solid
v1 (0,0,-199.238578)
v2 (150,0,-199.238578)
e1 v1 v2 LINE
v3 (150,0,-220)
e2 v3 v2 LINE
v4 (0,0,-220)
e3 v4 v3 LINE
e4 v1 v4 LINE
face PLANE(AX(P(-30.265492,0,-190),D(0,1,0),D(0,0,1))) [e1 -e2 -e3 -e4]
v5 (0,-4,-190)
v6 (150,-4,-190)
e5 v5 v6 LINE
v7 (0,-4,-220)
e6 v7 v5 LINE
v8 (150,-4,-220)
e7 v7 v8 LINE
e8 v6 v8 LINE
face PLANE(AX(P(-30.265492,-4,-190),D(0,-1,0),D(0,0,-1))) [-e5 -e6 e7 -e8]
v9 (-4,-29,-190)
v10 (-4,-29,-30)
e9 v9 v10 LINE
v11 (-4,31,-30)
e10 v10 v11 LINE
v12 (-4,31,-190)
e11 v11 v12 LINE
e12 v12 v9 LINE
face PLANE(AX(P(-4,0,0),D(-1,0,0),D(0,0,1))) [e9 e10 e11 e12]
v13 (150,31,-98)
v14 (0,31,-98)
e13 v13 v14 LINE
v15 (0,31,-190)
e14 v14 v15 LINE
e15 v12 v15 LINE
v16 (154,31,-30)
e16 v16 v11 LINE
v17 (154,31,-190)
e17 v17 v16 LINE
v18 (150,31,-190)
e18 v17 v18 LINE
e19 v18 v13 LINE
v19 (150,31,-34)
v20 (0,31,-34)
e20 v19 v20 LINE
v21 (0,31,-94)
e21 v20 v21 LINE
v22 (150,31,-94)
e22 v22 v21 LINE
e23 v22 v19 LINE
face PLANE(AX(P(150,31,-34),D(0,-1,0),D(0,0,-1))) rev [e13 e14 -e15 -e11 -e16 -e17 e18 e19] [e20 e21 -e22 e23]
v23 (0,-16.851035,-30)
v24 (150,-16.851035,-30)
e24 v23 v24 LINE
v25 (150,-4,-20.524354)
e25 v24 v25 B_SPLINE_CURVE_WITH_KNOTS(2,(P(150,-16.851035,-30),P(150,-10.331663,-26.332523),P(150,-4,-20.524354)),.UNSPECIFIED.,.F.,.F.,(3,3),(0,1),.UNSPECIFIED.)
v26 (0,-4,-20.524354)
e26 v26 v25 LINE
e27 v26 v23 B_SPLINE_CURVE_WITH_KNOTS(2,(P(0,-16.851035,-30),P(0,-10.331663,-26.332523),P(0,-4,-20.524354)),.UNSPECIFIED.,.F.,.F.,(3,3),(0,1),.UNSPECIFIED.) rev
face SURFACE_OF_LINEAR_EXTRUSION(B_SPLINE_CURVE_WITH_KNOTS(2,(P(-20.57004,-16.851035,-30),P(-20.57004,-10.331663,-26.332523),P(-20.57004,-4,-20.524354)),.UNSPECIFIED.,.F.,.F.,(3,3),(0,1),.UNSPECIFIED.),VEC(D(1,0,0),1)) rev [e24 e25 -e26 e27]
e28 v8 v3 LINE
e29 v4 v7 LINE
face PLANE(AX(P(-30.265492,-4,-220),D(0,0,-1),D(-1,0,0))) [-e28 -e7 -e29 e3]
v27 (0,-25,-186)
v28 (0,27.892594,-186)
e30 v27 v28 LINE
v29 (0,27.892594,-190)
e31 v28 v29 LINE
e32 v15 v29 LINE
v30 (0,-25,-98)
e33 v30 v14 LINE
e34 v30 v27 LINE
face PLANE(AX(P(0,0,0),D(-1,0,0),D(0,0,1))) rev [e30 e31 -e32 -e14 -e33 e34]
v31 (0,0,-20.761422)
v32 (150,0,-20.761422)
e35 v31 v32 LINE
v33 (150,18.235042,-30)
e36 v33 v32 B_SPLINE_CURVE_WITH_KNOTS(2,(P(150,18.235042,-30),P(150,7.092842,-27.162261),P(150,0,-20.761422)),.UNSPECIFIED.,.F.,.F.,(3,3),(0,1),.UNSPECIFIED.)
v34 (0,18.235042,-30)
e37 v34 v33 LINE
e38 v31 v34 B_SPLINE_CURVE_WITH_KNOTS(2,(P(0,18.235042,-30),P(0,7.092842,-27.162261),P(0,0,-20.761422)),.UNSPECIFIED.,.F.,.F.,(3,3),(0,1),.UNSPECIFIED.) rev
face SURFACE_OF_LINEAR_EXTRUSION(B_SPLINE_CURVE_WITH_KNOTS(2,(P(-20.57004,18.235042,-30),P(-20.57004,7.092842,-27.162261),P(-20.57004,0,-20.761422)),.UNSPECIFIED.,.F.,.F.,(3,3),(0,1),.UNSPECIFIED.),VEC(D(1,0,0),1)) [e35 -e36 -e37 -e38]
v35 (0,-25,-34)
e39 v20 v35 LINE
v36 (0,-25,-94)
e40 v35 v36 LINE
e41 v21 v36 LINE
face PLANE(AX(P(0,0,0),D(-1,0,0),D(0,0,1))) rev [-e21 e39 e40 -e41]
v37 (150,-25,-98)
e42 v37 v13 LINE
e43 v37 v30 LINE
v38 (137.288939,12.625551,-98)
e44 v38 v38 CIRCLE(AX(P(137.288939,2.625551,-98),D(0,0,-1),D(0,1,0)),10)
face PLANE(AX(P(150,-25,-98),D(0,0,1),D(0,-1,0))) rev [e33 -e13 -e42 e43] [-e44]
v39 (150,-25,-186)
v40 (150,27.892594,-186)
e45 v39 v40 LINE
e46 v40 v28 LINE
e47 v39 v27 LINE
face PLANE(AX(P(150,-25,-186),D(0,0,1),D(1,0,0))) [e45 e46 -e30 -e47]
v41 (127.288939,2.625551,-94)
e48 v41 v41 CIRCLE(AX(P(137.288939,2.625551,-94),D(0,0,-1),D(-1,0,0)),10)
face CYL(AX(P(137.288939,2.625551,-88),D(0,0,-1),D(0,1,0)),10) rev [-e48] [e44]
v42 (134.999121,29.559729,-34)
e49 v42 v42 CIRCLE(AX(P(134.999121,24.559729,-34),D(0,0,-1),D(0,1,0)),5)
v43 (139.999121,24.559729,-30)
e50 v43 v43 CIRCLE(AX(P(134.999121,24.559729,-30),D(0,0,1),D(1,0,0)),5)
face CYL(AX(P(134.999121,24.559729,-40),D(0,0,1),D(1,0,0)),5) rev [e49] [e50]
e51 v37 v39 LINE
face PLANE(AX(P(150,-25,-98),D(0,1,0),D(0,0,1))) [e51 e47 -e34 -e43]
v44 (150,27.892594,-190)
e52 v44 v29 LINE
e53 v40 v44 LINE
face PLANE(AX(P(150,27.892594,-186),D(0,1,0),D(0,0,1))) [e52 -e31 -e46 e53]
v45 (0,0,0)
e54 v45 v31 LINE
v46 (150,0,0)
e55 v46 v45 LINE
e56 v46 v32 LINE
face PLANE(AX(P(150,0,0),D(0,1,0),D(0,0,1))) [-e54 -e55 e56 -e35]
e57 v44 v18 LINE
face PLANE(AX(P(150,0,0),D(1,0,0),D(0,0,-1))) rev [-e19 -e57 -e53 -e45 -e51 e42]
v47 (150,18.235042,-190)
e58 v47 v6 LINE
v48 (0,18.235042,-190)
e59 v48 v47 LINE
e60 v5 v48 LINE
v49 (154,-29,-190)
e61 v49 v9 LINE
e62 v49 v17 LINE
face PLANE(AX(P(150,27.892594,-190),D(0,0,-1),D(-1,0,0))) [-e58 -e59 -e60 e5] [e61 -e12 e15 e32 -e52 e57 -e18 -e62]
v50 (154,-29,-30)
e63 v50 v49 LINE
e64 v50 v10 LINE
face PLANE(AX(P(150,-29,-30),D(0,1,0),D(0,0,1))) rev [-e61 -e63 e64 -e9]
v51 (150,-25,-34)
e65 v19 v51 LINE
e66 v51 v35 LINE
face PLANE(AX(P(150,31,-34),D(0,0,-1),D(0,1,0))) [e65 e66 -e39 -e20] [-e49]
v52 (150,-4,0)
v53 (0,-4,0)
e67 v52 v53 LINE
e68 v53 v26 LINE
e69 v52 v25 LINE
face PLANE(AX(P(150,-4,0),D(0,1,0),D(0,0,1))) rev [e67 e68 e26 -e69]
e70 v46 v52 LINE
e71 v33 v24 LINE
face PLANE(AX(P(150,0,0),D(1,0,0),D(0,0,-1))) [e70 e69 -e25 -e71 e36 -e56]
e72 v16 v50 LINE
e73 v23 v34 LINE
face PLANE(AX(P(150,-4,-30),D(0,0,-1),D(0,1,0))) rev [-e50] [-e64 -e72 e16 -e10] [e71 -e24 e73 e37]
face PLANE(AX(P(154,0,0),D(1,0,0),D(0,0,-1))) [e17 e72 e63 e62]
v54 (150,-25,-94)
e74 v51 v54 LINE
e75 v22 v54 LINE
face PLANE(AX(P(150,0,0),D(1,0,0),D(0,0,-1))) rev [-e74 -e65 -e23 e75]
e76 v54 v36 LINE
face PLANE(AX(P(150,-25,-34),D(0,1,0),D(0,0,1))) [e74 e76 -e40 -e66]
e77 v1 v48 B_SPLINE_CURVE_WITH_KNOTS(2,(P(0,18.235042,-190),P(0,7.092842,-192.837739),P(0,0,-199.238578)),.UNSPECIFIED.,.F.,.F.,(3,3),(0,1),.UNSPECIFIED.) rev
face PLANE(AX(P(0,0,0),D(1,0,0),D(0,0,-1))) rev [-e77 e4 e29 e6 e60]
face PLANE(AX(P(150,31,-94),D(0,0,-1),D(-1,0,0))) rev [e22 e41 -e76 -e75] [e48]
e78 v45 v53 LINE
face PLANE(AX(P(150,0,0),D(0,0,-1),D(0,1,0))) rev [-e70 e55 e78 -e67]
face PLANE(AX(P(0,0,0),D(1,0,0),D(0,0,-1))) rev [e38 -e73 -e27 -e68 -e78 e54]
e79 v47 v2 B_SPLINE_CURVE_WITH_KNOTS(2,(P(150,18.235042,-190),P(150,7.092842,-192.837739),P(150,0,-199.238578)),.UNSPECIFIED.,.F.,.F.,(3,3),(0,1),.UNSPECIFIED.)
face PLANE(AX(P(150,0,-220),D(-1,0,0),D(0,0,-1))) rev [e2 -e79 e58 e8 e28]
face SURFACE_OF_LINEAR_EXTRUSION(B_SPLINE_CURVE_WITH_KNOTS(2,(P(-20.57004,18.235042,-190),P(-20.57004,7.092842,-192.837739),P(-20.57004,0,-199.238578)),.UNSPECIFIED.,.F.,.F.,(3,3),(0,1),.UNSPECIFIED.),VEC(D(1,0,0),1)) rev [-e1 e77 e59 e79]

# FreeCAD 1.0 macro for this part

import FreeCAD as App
import Part
import Sketcher
Q = App.Units.Quantity

doc = App.newDocument("Part")
body = doc.addObject("PartDesign::Body", "Body")

# Sketch on YZ plane
sketch1 = body.newObject("Sketcher::SketchObject", "Sketch")
sketch1.AttachmentSupport = (doc.getObject("YZ_Plane"), [""])
sketch1.MapMode = "FlatFace"
sketch1.addGeometry([
    Part.LineSegment(App.Vector(31, -30, 0), App.Vector(0, -30, 0)),  # 0
    Part.LineSegment(App.Vector(0, -30, 0), App.Vector(0, 0, 0)),  # 1
    Part.LineSegment(App.Vector(0, 0, 0), App.Vector(-4, 0, 0)),  # 2
    Part.LineSegment(App.Vector(-4, 0, 0), App.Vector(-4, -30, 0)),  # 3
    Part.LineSegment(App.Vector(-4, -30, 0), App.Vector(-29, -30, 0)),  # 4
    Part.LineSegment(App.Vector(-29, -30, 0), App.Vector(-29, -190, 0)),  # 5
    Part.LineSegment(App.Vector(-29, -190, 0), App.Vector(27.9, -190, 0)),  # 6
    Part.LineSegment(App.Vector(27.9, -190, 0), App.Vector(27.9, -186, 0)),  # 7
    Part.LineSegment(App.Vector(27.9, -186, 0), App.Vector(-25, -186, 0)),  # 8
    Part.LineSegment(App.Vector(-25, -186, 0), App.Vector(-25, -98, 0)),  # 9
    Part.LineSegment(App.Vector(-25, -98, 0), App.Vector(31, -98, 0)),  # 10
    Part.LineSegment(App.Vector(31, -98, 0), App.Vector(31, -94, 0)),  # 11
    Part.LineSegment(App.Vector(31, -94, 0), App.Vector(-25, -94, 0)),  # 12
    Part.LineSegment(App.Vector(-25, -94, 0), App.Vector(-25, -34, 0)),  # 13
    Part.LineSegment(App.Vector(-25, -34, 0), App.Vector(31, -34, 0)),  # 14
    Part.LineSegment(App.Vector(31, -34, 0), App.Vector(31, -30, 0)),  # 15
], False)
sketch1.addConstraint([
    Sketcher.Constraint("Coincident", 0, 2, 1, 1),
    Sketcher.Constraint("Coincident", 1, 2, 2, 1),
    Sketcher.Constraint("Coincident", 2, 2, 3, 1),
    Sketcher.Constraint("Coincident", 3, 2, 4, 1),
    Sketcher.Constraint("Coincident", 4, 2, 5, 1),
    Sketcher.Constraint("Coincident", 5, 2, 6, 1),
    Sketcher.Constraint("Coincident", 6, 2, 7, 1),
    Sketcher.Constraint("Coincident", 7, 2, 8, 1),
    Sketcher.Constraint("Coincident", 8, 2, 9, 1),
    Sketcher.Constraint("Coincident", 9, 2, 10, 1),
    Sketcher.Constraint("Coincident", 10, 2, 11, 1),
    Sketcher.Constraint("Coincident", 11, 2, 12, 1),
    Sketcher.Constraint("Coincident", 12, 2, 13, 1),
    Sketcher.Constraint("Coincident", 13, 2, 14, 1),
    Sketcher.Constraint("Coincident", 14, 2, 15, 1),
    Sketcher.Constraint("Coincident", 15, 2, 0, 1),
    Sketcher.Constraint("Horizontal", 0),
    Sketcher.Constraint("Vertical", 1),
    Sketcher.Constraint("Horizontal", 2),
    Sketcher.Constraint("Vertical", 3),
    Sketcher.Constraint("Horizontal", 4),
    Sketcher.Constraint("Vertical", 5),
    Sketcher.Constraint("Horizontal", 6),
    Sketcher.Constraint("Vertical", 7),
    Sketcher.Constraint("Horizontal", 8),
    Sketcher.Constraint("Vertical", 9),
    Sketcher.Constraint("Horizontal", 10),
    Sketcher.Constraint("Vertical", 11),
    Sketcher.Constraint("Horizontal", 12),
    Sketcher.Constraint("Vertical", 13),
    Sketcher.Constraint("Horizontal", 14),
    Sketcher.Constraint("Vertical", 15),
    Sketcher.Constraint("Coincident", 1, 2, -1, 1),
    Sketcher.Constraint("Horizontal", 0, 2, 3, 2),
    Sketcher.Constraint("Vertical", 9, 2, 12, 2),
    Sketcher.Constraint("Vertical", 11, 2, 14, 2),
    Sketcher.Constraint("Equal", 2, 7),
    Sketcher.Constraint("Equal", 7, 11),
    Sketcher.Constraint("Equal", 11, 15),
    Sketcher.Constraint("DistanceX", 0, 2, 0, 1, Q("31 mm")),
    Sketcher.Constraint("DistanceX", 2, 2, 2, 1, Q("4 mm")),
    Sketcher.Constraint("DistanceX", 4, 2, 4, 1, Q("25 mm")),
    Sketcher.Constraint("DistanceX", 10, 1, 10, 2, Q("56 mm")),
    Sketcher.Constraint("DistanceY", 1, 1, 1, 2, Q("30 mm")),
    Sketcher.Constraint("DistanceY", 5, 2, 5, 1, Q("160 mm")),
    Sketcher.Constraint("DistanceY", 9, 1, 9, 2, Q("88 mm")),
    Sketcher.Constraint("DistanceX", 6, 1, 6, 2, Q("56.892594 mm")),
])
pad1 = body.newObject("PartDesign::Pad", "Pad")
pad1.Profile = sketch1
pad1.Length = 150

# Sketch on YZ plane
sketch2 = body.newObject("Sketcher::SketchObject", "Sketch001")
sketch2.AttachmentSupport = (doc.getObject("YZ_Plane"), [""])
sketch2.MapMode = "FlatFace"
sketch2.AttachmentOffset = App.Placement(App.Vector(0, 0, 150), App.Rotation())
sketch2.addGeometry([
    Part.LineSegment(App.Vector(31, -30, 0), App.Vector(-29, -30, 0)),
    Part.LineSegment(App.Vector(-29, -30, 0), App.Vector(-29, -190, 0)),
    Part.LineSegment(App.Vector(-29, -190, 0), App.Vector(31, -190, 0)),
    Part.LineSegment(App.Vector(31, -190, 0), App.Vector(31, -30, 0)),
], False)
sketch2.addConstraint([
    Sketcher.Constraint("Coincident", 0, 2, 1, 1),
    Sketcher.Constraint("Coincident", 1, 2, 2, 1),
    Sketcher.Constraint("Coincident", 2, 2, 3, 1),
    Sketcher.Constraint("Coincident", 3, 2, 0, 1),
    Sketcher.Constraint("Horizontal", 0),
    Sketcher.Constraint("Vertical", 1),
    Sketcher.Constraint("Horizontal", 2),
    Sketcher.Constraint("Vertical", 3),
    Sketcher.Constraint("DistanceX", 0, 2, 0, 1, Q("60 mm")),
    Sketcher.Constraint("DistanceY", 1, 2, 1, 1, Q("160 mm")),
    Sketcher.Constraint("DistanceX", 0, 2, -1, 1, Q("29 mm")),
    Sketcher.Constraint("DistanceY", 0, 2, -1, 1, Q("30 mm")),
])
pad2 = body.newObject("PartDesign::Pad", "Pad001")
pad2.Profile = sketch2
pad2.Length = 4

# Sketch on YZ plane
sketch3 = body.newObject("Sketcher::SketchObject", "Sketch002")
sketch3.AttachmentSupport = (doc.getObject("YZ_Plane"), [""])
sketch3.MapMode = "FlatFace"
sketch3.addGeometry([
    Part.LineSegment(App.Vector(31, -190, 0), App.Vector(-29, -190, 0)),
    Part.LineSegment(App.Vector(-29, -190, 0), App.Vector(-29, -30, 0)),
    Part.LineSegment(App.Vector(-29, -30, 0), App.Vector(31, -30, 0)),
    Part.LineSegment(App.Vector(31, -30, 0), App.Vector(31, -190, 0)),
], False)
sketch3.addConstraint([
    Sketcher.Constraint("Coincident", 0, 2, 1, 1),
    Sketcher.Constraint("Coincident", 1, 2, 2, 1),
    Sketcher.Constraint("Coincident", 2, 2, 3, 1),
    Sketcher.Constraint("Coincident", 3, 2, 0, 1),
    Sketcher.Constraint("Horizontal", 0),
    Sketcher.Constraint("Vertical", 1),
    Sketcher.Constraint("Horizontal", 2),
    Sketcher.Constraint("Vertical", 3),
    Sketcher.Constraint("DistanceX", 0, 2, 0, 1, Q("60 mm")),
    Sketcher.Constraint("DistanceY", 1, 1, 1, 2, Q("160 mm")),
    Sketcher.Constraint("DistanceX", 0, 2, -1, 1, Q("29 mm")),
    Sketcher.Constraint("DistanceY", 0, 2, -1, 1, Q("190 mm")),
])
pad3 = body.newObject("PartDesign::Pad", "Pad002")
pad3.Profile = sketch3
pad3.Length = 4
pad3.Reversed = True

# Sketch on YZ plane
sketch4 = body.newObject("Sketcher::SketchObject", "Sketch003")
sketch4.AttachmentSupport = (doc.getObject("YZ_Plane"), [""])
sketch4.MapMode = "FlatFace"
sketch4.AttachmentOffset = App.Placement(App.Vector(0, 0, 150), App.Rotation())
sketch4.addGeometry([
    Part.BSplineCurve([App.Vector(18.235042, -30, 0), App.Vector(7.092842, -27.162261, 0), App.Vector(0, -20.761422, 0)], [3, 3], [0, 1], False, 2, [1, 1, 1], False),  # 0
    Part.LineSegment(App.Vector(18.235042, -30, 0), App.Vector(0, -30, 0)),  # 1
    Part.LineSegment(App.Vector(0, -30, 0), App.Vector(-0.092907, -20.661219, 0)),  # 2
    Part.LineSegment(App.Vector(-0.092907, -20.661219, 0), App.Vector(0, -20.761422, 0)),  # 3
    Part.LineSegment(App.Vector(-4, -30, 0), App.Vector(-16.851035, -30, 0)),  # 4
    Part.BSplineCurve([App.Vector(-16.851035, -30, 0), App.Vector(-10.331663, -26.332523, 0), App.Vector(-4, -20.524354, 0)], [3, 3], [0, 1], False, 2, [1, 1, 1], False),  # 5
    Part.LineSegment(App.Vector(-4, -20.524354, 0), App.Vector(-4, -30, 0)),  # 6
], False)
sketch4.addConstraint([
    Sketcher.Constraint("Block", 0),
    Sketcher.Constraint("Block", 5),
    Sketcher.Constraint("Coincident", 0, 1, 1, 1),
    Sketcher.Constraint("Coincident", 1, 2, 2, 1),
    Sketcher.Constraint("Coincident", 2, 2, 3, 1),
    Sketcher.Constraint("Coincident", 3, 2, 0, 2),
    Sketcher.Constraint("Coincident", 4, 2, 5, 1),
    Sketcher.Constraint("Coincident", 5, 2, 6, 1),
    Sketcher.Constraint("Coincident", 6, 2, 4, 1),
    Sketcher.Constraint("Horizontal", 1),
    Sketcher.Constraint("Horizontal", 4),
    Sketcher.Constraint("Vertical", 6),
    Sketcher.Constraint("PointOnObject", 1, 2, -2),
    Sketcher.Constraint("Angle", 2, Q("90.569986 deg")),
    Sketcher.Constraint("DistanceY", 2, 2, -1, 1, Q("20.661219 mm")),
])
pad4 = body.newObject("PartDesign::Pad", "Pad003")
pad4.Profile = sketch4
pad4.Length = 150
pad4.Reversed = True
doc.recompute()

datumplane = body.newObject("PartDesign::Plane", "DatumPlane")
datumplane.AttachmentSupport = (doc.getObject("XY_Plane"), [""])
datumplane.MapMode = "FlatFace"
datumplane.AttachmentOffset = App.Placement(App.Vector(0, 0, -110), App.Rotation())
mirrored = body.newObject("PartDesign::Mirrored", "Mirrored")
mirrored.Originals = [pad4]
mirrored.MirrorPlane = (datumplane, [""])
body.Tip = mirrored

# Sketch on YZ plane
sketch5 = body.newObject("Sketcher::SketchObject", "Sketch004")
sketch5.AttachmentSupport = (doc.getObject("YZ_Plane"), [""])
sketch5.MapMode = "FlatFace"
sketch5.AttachmentOffset = App.Placement(App.Vector(0, 0, 150), App.Rotation())
sketch5.addGeometry([
    Part.LineSegment(App.Vector(0, -190, 0), App.Vector(-4, -190, 0)),
    Part.LineSegment(App.Vector(-4, -190, 0), App.Vector(-4, -220, 0)),
    Part.LineSegment(App.Vector(-4, -220, 0), App.Vector(0, -220, 0)),
    Part.LineSegment(App.Vector(0, -220, 0), App.Vector(0, -190, 0)),
], False)
sketch5.addConstraint([
    Sketcher.Constraint("Coincident", 0, 2, 1, 1),
    Sketcher.Constraint("Coincident", 1, 2, 2, 1),
    Sketcher.Constraint("Coincident", 2, 2, 3, 1),
    Sketcher.Constraint("Coincident", 3, 2, 0, 1),
    Sketcher.Constraint("Horizontal", 0),
    Sketcher.Constraint("Vertical", 1),
    Sketcher.Constraint("Horizontal", 2),
    Sketcher.Constraint("Vertical", 3),
    Sketcher.Constraint("PointOnObject", 2, 2, -2),
    Sketcher.Constraint("DistanceX", 0, 2, 0, 1, Q("4 mm")),
    Sketcher.Constraint("DistanceY", 1, 2, 1, 1, Q("30 mm")),
    Sketcher.Constraint("DistanceY", 0, 2, -1, 1, Q("190 mm")),
])
pad5 = body.newObject("PartDesign::Pad", "Pad004")
pad5.Profile = sketch5
pad5.Length = 150
pad5.Reversed = True

# Sketch on YZ plane
sketch6 = body.newObject("Sketcher::SketchObject", "Sketch005")
sketch6.AttachmentSupport = (doc.getObject("YZ_Plane"), [""])
sketch6.MapMode = "FlatFace"
sketch6.AttachmentOffset = App.Placement(App.Vector(0, 0, 150), App.Rotation())
sketch6.addGeometry([
    Part.LineSegment(App.Vector(-4, -199, 0), App.Vector(-4, -190, 0)),
    Part.LineSegment(App.Vector(-4, -190, 0), App.Vector(-17, -190, 0)),
    Part.LineSegment(App.Vector(-17, -190, 0), App.Vector(-4, -199, 0)),
], False)
sketch6.addConstraint([
    Sketcher.Constraint("Coincident", 0, 2, 1, 1),
    Sketcher.Constraint("Coincident", 1, 2, 2, 1),
    Sketcher.Constraint("Coincident", 2, 2, 0, 1),
    Sketcher.Constraint("Vertical", 0),
    Sketcher.Constraint("Horizontal", 1),
    Sketcher.Constraint("DistanceX", 0, 2, -1, 1, Q("4 mm")),
    Sketcher.Constraint("DistanceY", 0, 2, -1, 1, Q("190 mm")),
    Sketcher.Constraint("DistanceX", 1, 2, 1, 1, Q("12.851035 mm")),
    Sketcher.Constraint("DistanceY", 0, 1, 0, 2, Q("9.475646 mm")),
])
pocket1 = body.newObject("PartDesign::Pocket", "Pocket")
pocket1.Profile = sketch6
pocket1.Type = "UpToFirst"

# Sketch on XY plane
sketch7 = body.newObject("Sketcher::SketchObject", "Sketch006")
sketch7.AttachmentSupport = (doc.getObject("XY_Plane"), [""])
sketch7.MapMode = "FlatFace"
sketch7.AttachmentOffset = App.Placement(App.Vector(0, 0, -98), App.Rotation())
sketch7.addGeometry(Part.Circle(App.Vector(137, 3, 0), App.Vector(0, 0, 1), 10), False)
sketch7.addConstraint([
    Sketcher.Constraint("Diameter", 0, Q("20 mm")),
    Sketcher.Constraint("DistanceX", -1, 1, 0, 3, Q("137.288939 mm")),
    Sketcher.Constraint("DistanceY", -1, 1, 0, 3, Q("2.625551 mm")),
])
pocket2 = body.newObject("PartDesign::Pocket", "Pocket001")
pocket2.Profile = sketch7
pocket2.Length = 10
pocket2.Reversed = True

# Sketch on XY plane
sketch8 = body.newObject("Sketcher::SketchObject", "Sketch007")
sketch8.AttachmentSupport = (doc.getObject("XY_Plane"), [""])
sketch8.MapMode = "FlatFace"
sketch8.AttachmentOffset = App.Placement(App.Vector(0, 0, -30), App.Rotation())
sketch8.addGeometry(Part.Circle(App.Vector(135, 25, 0), App.Vector(0, 0, 1), 5), False)
sketch8.addConstraint([
    Sketcher.Constraint("Diameter", 0, Q("10 mm")),
    Sketcher.Constraint("DistanceX", -1, 1, 0, 3, Q("134.999121 mm")),
    Sketcher.Constraint("DistanceY", -1, 1, 0, 3, Q("24.559729 mm")),
])
pocket3 = body.newObject("PartDesign::Pocket", "Pocket002")
pocket3.Profile = sketch8
pocket3.Length = 10

doc.recompute()
